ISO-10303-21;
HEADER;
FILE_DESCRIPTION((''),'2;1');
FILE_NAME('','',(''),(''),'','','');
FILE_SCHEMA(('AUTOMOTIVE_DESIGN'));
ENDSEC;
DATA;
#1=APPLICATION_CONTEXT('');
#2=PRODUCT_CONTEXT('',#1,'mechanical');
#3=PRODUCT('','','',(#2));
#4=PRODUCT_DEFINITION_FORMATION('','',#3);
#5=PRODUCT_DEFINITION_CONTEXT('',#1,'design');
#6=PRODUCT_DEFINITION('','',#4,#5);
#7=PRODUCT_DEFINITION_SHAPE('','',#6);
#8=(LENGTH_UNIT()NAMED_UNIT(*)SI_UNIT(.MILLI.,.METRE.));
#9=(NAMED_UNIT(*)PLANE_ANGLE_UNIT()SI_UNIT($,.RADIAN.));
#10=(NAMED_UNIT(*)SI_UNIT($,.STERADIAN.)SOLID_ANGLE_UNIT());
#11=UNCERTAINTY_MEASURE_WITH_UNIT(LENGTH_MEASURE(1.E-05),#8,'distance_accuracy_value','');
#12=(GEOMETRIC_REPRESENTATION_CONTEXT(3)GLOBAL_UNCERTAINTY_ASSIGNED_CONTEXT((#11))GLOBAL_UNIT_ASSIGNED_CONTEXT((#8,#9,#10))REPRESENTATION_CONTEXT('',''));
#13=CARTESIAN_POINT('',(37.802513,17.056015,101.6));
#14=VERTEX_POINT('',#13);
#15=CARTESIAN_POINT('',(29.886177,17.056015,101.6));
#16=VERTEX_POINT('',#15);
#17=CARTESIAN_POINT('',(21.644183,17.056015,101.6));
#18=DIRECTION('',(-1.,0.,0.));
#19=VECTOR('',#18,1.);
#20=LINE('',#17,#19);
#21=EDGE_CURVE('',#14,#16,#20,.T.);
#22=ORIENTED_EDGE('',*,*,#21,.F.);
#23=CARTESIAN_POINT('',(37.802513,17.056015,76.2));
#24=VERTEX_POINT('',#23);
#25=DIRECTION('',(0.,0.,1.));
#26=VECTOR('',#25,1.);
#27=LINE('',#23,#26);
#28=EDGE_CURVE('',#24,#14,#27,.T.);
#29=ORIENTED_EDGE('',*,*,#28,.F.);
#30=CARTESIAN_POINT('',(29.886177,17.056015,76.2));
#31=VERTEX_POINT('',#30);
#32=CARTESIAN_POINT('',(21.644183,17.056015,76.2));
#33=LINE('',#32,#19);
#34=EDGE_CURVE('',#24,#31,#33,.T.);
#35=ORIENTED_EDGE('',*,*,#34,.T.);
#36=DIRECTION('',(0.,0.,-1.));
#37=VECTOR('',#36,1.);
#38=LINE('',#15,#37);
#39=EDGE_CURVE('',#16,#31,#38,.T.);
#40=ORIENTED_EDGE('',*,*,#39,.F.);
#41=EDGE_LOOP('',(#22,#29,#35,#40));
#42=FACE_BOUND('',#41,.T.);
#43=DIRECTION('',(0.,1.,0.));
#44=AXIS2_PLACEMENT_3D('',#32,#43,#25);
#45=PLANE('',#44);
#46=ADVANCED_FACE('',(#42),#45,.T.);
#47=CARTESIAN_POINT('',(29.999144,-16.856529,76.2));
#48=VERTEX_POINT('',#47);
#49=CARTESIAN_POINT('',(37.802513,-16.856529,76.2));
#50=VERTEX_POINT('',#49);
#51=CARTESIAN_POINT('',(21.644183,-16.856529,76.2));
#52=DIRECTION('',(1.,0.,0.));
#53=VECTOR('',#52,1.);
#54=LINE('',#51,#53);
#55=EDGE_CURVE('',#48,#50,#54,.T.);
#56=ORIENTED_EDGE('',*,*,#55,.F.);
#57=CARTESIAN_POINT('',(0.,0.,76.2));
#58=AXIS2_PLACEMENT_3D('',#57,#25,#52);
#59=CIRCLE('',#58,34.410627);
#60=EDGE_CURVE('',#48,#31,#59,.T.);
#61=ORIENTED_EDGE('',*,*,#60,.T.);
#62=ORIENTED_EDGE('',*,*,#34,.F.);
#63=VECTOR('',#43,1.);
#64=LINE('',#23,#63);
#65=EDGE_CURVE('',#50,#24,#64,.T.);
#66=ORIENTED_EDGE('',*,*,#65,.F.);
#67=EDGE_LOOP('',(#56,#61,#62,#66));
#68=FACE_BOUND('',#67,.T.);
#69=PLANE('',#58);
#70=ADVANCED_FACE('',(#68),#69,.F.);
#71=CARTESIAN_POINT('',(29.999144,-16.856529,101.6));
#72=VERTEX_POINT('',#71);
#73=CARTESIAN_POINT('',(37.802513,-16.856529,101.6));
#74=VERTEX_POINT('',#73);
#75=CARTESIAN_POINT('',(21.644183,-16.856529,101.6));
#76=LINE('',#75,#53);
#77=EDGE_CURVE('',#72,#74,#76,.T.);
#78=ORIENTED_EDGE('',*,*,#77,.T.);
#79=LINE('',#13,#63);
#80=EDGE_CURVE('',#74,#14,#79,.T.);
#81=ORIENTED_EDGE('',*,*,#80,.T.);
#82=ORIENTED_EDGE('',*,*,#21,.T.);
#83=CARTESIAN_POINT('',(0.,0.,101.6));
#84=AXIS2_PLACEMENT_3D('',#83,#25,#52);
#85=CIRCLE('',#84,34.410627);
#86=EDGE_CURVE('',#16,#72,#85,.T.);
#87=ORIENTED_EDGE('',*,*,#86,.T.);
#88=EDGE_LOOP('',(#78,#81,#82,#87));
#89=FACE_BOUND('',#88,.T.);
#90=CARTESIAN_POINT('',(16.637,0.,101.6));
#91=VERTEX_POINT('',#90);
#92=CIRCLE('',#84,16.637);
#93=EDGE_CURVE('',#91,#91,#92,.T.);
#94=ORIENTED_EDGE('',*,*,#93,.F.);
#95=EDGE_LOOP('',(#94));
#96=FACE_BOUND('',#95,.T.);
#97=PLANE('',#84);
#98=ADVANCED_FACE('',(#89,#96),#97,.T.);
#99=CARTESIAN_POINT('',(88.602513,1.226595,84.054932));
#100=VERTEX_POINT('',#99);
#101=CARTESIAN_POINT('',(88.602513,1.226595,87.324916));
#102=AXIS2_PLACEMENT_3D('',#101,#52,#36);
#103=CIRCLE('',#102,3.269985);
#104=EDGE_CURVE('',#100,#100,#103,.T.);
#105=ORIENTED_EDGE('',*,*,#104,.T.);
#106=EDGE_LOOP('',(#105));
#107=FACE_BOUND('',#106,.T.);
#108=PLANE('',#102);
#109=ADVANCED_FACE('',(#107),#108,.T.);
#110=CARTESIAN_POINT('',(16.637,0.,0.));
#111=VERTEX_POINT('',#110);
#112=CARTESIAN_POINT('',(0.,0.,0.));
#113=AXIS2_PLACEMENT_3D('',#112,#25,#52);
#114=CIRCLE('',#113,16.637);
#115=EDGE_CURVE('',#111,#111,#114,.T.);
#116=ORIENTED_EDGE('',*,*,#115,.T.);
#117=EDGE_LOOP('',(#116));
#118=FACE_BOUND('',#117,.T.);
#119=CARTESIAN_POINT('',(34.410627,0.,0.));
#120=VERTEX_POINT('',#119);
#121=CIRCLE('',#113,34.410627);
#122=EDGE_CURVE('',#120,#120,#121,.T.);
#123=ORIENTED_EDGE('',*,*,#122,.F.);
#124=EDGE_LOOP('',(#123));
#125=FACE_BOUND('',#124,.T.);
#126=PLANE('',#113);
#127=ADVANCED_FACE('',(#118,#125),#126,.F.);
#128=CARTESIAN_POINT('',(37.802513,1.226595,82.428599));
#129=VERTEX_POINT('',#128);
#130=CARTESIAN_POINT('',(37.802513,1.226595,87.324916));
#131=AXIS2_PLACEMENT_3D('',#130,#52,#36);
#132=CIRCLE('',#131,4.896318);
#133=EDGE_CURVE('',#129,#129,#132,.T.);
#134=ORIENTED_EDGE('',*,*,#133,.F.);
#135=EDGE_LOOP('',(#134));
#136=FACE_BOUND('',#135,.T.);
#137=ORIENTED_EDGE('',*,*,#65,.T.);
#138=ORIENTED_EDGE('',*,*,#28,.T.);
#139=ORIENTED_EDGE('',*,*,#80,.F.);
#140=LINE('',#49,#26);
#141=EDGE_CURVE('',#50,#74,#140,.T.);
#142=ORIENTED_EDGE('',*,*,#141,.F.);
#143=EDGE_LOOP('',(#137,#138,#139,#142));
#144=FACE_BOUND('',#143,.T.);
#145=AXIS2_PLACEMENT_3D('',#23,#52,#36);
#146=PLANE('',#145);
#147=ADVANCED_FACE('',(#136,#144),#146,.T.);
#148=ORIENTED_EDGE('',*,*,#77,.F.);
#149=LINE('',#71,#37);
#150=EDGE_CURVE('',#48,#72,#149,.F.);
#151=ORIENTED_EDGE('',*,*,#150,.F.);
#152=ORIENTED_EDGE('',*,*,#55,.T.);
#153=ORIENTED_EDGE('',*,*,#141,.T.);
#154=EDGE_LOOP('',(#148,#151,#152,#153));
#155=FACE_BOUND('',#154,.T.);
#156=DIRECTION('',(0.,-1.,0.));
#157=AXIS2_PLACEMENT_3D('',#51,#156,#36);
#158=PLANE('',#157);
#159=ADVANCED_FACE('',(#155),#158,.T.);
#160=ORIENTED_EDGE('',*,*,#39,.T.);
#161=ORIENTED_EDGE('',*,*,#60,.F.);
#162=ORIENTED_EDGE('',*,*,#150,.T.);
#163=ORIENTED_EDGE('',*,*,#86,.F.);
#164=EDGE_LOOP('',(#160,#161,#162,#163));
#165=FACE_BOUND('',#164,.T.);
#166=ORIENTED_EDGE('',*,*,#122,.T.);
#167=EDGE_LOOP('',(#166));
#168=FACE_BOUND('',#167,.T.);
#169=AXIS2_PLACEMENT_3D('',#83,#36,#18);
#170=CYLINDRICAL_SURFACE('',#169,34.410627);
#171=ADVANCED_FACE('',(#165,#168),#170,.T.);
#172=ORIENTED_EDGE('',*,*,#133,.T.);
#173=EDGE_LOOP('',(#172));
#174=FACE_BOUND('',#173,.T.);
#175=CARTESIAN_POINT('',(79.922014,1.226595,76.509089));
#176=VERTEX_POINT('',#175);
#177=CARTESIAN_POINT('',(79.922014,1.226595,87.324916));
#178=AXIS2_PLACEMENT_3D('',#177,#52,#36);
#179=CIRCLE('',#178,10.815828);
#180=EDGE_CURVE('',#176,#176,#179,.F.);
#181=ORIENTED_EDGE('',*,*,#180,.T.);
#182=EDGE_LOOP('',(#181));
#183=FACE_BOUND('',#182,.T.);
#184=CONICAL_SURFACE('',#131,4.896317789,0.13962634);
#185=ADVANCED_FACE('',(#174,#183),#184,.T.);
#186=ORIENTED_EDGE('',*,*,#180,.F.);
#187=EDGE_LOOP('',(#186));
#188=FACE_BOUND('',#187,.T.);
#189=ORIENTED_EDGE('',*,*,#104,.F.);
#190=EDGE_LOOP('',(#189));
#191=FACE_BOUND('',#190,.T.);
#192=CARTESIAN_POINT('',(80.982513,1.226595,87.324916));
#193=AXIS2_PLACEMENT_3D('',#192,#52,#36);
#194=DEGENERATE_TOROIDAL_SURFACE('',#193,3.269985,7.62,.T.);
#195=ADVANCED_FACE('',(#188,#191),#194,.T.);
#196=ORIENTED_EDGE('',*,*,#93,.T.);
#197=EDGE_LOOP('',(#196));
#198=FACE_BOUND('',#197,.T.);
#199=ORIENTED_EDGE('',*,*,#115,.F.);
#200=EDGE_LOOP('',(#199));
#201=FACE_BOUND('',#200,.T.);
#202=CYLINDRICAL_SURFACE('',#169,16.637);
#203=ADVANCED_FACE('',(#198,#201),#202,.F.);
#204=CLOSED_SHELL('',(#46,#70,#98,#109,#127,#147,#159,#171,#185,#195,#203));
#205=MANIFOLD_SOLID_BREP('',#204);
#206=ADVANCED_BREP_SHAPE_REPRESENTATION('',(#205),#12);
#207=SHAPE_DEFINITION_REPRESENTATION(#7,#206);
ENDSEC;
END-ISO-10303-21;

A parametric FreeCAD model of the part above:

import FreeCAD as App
import Part
import Sketcher

V = App.Vector
Q = App.Units.Quantity


def edges_at(feature, points):
    """Names of the edges that pass closest to the given points."""
    edges = feature.Shape.Edges
    near = lambda p: min(range(len(edges)), key=lambda i: edges[i].distToShape(Part.Vertex(*p))[0])
    return sorted({f"Edge{near(p) + 1}" for p in points})

doc = App.newDocument("Part")
params = doc.addObject("Spreadsheet::Sheet", "Params")
for row, (alias, value) in enumerate([
    ("sketch1_diameter", "1.31 in"),
    ("pad1_length", "4 in"),
    ("pad2_length", "1 in"),
    ("pad3_length", "2 in"),
    ("pad3_taper", "8 deg"),
    ("fillet_radius", "0.3 in"),
], start=1):
    params.set(f"A{row}", alias)
    params.set(f"B{row}", "=" + value)
    params.setAlias(f"B{row}", alias)

body = doc.addObject("PartDesign::Body", "Body")

# Sketch on XY plane
sketch1 = body.newObject("Sketcher::SketchObject", "Sketch")
sketch1.AttachmentSupport = (doc.getObject("XY_Plane"), [""])
sketch1.MapMode = "FlatFace"
sketch1.addGeometry([
    Part.Circle(V(0, 0, 0), V(0, 0, 1), 34),
    Part.Circle(V(0, 0, 0), V(0, 0, 1), 17),
], False)
sketch1.addConstraint([
    Sketcher.Constraint("Coincident", 0, 3, -1, 1),
    Sketcher.Constraint("Coincident", 1, 3, -1, 1),
    Sketcher.Constraint("Diameter", 1, Q("1.31 in")),
    Sketcher.Constraint("Diameter", 0, 68.821254),
])
sketch1.setExpression("Constraints[2]", "Params.sketch1_diameter")
pad1 = body.newObject("PartDesign::Pad", "Pad")
pad1.Profile = sketch1
pad1.setExpression("Length", "Params.pad1_length")

# Sketch on XY plane
sketch2 = body.newObject("Sketcher::SketchObject", "Sketch001")
sketch2.AttachmentSupport = (doc.getObject("XY_Plane"), [""])
sketch2.MapMode = "FlatFace"
sketch2.AttachmentOffset = App.Placement(V(0, 0, 4 * 25.4), App.Rotation())
sketch2.addGeometry([
    Part.LineSegment(V(22, 17, 0), V(22, -17, 0)),
    Part.LineSegment(V(22, -17, 0), V(38, -17, 0)),
    Part.LineSegment(V(38, -17, 0), V(38, 17, 0)),
    Part.LineSegment(V(38, 17, 0), V(22, 17, 0)),
], False)
sketch2.addConstraint([
    Sketcher.Constraint("Coincident", 0, 2, 1, 1),
    Sketcher.Constraint("Coincident", 1, 2, 2, 1),
    Sketcher.Constraint("Coincident", 2, 2, 3, 1),
    Sketcher.Constraint("Coincident", 3, 2, 0, 1),
    Sketcher.Constraint("Vertical", 0),
    Sketcher.Constraint("Horizontal", 1),
    Sketcher.Constraint("Vertical", 2),
    Sketcher.Constraint("Horizontal", 3),
    Sketcher.Constraint("DistanceX", 1, 1, 1, 2, 16.15833),
    Sketcher.Constraint("DistanceY", 0, 2, 0, 1, 33.912544),
    Sketcher.Constraint("DistanceY", 0, 2, -1, 1, 16.856529),
    Sketcher.Constraint("DistanceX", -1, 1, 0, 2, 21.644183),
])
pad2 = body.newObject("PartDesign::Pad", "Pad001")
pad2.Profile = sketch2
pad2.setExpression("Length", "Params.pad2_length")
pad2.Reversed = True

# Sketch on YZ plane
sketch3 = body.newObject("Sketcher::SketchObject", "Sketch002")
sketch3.AttachmentSupport = (doc.getObject("YZ_Plane"), [""])
sketch3.MapMode = "FlatFace"
sketch3.AttachmentOffset = App.Placement(V(0, 0, 37.802513), App.Rotation())
sketch3.addGeometry(Part.Circle(V(1.2, 87.3, 0), V(0, 0, 1), 4.9), False)
sketch3.addConstraint([
    Sketcher.Constraint("Diameter", 0, 9.792636),
    Sketcher.Constraint("DistanceX", -1, 1, 0, 3, 1.226595),
    Sketcher.Constraint("DistanceY", -1, 1, 0, 3, 87.324916),
])
pad3 = body.newObject("PartDesign::Pad", "Pad002")
pad3.Profile = sketch3
pad3.setExpression("Length", "Params.pad3_length")
pad3.setExpression("TaperAngle", "Params.pad3_taper")
doc.recompute()

fillet = body.newObject("PartDesign::Fillet", "Fillet")
fillet.Base = (pad3, edges_at(pad3, [(88.603, 1.227, 99.361)]))
fillet.setExpression("Radius", "Params.fillet_radius")

doc.recompute()
